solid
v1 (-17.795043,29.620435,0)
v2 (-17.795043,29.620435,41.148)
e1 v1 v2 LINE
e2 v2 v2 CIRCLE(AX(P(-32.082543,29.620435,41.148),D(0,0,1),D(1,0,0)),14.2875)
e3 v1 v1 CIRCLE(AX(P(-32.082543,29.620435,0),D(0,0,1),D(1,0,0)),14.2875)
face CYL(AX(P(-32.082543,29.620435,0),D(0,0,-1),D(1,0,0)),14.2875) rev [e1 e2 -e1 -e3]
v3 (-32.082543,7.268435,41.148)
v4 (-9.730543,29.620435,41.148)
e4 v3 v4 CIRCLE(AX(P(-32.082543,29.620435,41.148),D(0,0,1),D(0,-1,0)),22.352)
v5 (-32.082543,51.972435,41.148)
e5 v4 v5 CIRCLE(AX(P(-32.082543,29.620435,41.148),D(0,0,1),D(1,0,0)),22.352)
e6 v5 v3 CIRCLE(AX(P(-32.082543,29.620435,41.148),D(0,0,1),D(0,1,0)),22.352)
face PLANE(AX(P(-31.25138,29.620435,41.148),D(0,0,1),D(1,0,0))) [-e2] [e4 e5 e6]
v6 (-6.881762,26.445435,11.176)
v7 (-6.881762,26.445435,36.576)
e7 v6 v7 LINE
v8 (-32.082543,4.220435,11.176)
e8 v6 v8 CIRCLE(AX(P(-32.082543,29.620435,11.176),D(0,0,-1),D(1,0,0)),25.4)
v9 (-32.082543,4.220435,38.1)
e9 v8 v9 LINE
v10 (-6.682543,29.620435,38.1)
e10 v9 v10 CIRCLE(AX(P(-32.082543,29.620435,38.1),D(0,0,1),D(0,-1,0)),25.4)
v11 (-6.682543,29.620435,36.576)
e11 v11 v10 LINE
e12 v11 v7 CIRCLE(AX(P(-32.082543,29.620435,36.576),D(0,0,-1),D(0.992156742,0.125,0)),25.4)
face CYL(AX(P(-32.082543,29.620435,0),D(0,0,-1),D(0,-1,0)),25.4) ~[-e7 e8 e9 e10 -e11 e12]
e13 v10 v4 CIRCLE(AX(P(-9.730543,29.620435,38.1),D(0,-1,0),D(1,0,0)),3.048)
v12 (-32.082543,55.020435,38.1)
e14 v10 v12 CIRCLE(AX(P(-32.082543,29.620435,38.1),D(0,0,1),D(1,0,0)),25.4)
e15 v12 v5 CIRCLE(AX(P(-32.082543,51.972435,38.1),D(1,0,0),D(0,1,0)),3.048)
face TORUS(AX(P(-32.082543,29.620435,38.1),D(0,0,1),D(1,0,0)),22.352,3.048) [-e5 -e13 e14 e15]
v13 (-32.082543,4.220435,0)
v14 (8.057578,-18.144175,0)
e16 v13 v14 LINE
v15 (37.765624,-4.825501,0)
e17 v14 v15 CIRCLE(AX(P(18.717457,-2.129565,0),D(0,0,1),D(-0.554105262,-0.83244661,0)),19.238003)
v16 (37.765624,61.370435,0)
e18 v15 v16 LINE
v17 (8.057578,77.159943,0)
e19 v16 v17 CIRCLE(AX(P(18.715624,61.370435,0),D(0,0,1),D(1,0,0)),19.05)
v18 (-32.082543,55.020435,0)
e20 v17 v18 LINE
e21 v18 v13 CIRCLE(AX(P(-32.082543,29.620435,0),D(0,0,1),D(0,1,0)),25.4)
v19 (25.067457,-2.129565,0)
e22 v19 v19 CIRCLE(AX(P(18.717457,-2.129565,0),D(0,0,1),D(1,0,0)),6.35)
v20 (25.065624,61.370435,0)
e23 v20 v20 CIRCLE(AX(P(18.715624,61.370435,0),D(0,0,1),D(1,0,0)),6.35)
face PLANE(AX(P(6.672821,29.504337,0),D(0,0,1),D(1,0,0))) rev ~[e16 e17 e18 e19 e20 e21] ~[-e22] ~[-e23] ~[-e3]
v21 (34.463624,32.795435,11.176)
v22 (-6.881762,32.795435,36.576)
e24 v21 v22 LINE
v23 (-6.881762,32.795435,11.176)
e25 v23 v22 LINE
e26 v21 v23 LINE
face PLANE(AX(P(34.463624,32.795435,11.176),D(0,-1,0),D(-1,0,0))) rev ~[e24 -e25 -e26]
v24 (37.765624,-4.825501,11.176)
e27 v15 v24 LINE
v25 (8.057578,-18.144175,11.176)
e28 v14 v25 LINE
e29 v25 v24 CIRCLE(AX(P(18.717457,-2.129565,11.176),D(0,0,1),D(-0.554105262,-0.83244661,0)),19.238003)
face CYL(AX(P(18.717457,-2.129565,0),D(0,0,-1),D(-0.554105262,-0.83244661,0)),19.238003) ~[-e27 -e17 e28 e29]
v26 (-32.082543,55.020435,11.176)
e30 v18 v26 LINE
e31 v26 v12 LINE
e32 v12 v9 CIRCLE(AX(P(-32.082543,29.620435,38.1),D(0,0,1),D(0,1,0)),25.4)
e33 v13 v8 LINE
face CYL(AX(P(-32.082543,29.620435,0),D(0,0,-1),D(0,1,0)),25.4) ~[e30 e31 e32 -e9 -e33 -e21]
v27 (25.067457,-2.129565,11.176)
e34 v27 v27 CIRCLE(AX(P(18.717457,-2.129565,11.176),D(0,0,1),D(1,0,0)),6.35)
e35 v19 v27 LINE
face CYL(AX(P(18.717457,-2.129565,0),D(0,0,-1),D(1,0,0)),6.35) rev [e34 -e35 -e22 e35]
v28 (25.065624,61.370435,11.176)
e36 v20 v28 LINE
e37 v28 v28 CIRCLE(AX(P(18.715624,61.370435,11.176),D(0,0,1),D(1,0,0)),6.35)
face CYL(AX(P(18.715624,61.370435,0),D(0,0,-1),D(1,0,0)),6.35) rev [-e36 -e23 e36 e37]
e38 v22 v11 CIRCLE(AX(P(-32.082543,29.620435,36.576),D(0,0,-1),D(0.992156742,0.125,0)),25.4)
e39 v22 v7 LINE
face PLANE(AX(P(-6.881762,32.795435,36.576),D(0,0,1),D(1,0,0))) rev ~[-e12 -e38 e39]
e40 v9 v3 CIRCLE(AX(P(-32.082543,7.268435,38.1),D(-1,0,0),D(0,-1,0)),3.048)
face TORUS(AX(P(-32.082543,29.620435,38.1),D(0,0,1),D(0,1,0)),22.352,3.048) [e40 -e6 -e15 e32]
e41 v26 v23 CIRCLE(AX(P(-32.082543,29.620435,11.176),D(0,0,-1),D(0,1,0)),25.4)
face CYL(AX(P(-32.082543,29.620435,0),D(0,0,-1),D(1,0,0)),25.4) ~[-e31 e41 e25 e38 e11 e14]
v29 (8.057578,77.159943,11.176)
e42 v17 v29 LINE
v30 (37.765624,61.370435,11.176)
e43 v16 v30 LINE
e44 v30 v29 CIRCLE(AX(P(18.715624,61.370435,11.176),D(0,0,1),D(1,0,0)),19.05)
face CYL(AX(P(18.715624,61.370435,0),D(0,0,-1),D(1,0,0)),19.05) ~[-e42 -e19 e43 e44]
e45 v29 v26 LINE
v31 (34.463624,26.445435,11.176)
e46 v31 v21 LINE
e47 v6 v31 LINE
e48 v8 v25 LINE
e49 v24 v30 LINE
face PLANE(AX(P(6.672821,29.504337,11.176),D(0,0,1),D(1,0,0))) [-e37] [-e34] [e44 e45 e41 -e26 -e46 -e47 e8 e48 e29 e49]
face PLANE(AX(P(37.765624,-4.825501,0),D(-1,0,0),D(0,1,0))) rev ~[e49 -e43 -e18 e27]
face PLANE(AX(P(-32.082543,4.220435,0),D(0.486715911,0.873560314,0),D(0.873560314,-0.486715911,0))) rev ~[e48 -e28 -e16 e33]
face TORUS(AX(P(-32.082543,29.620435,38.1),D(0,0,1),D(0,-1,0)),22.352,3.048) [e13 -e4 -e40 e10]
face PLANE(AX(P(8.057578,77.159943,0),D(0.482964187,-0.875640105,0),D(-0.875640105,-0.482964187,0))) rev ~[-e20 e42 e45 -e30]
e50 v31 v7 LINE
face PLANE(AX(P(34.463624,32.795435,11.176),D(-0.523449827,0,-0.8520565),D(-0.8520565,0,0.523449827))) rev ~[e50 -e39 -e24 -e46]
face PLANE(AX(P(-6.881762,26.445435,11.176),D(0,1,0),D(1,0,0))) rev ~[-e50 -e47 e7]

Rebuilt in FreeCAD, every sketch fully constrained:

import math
import FreeCAD as App
import Part
import Sketcher

V = App.Vector
Q = App.Units.Quantity


def edges_at(feature, points):
    """Names of the edges that pass closest to the given points."""
    edges = feature.Shape.Edges
    near = lambda p: min(range(len(edges)), key=lambda i: edges[i].distToShape(Part.Vertex(*p))[0])
    return sorted({f"Edge{near(p) + 1}" for p in points})


def add_polygon(sketch, points):
    """Adds a closed chain of lines whose ends are joined by coincident constraints."""
    first, n = sketch.GeometryCount, len(points)
    for a, b in zip(points, points[1:] + points[:1]):
        sketch.addGeometry(Part.LineSegment(App.Vector(*a, 0), App.Vector(*b, 0)), False)
    for i in range(n):
        sketch.addConstraint(Sketcher.Constraint("Coincident", first + i, 2, first + (i + 1) % n, 1))

doc = App.newDocument("Part")
params = doc.addObject("Spreadsheet::Sheet", "Params")
for row, (alias, value) in enumerate([
    ("sketch1_radius", "1 in"),
    ("sketch1_diameter", "1.125 in"),
    ("pad1_length", "1.62 in"),
    ("sketch2_radius", "1 in"),
    ("sketch2_diameter", "0.5 in"),
    ("sketch2_radius2", "0.75 in"),
    ("pad2_length", "0.44 in"),
    ("fillet_radius", "0.12 in"),
    ("sketch3_radius", "1 in"),
    ("sketch3_height", "0.25 in"),
    ("pad3_length", "1 in"),
    ("sketch4_height", "1 in"),
], start=1):
    params.set(f"A{row}", alias)
    params.set(f"B{row}", "=" + value)
    params.setAlias(f"B{row}", alias)

body = doc.addObject("PartDesign::Body", "Body")

# Sketch on XY plane
sketch1 = body.newObject("Sketcher::SketchObject", "Sketch")
sketch1.AttachmentSupport = (doc.getObject("XY_Plane"), [""])
sketch1.MapMode = "FlatFace"
sketch1.addGeometry([
    Part.ArcOfCircle(Part.Circle(V(-32.082543, 29.620435, 0), V(0, 0, 1), 25.4), math.radians(-90), math.radians(0)),
    Part.ArcOfCircle(Part.Circle(V(-32.082543, 29.620435, 0), V(0, 0, 1), 25.4), math.radians(0), math.radians(90)),
    Part.ArcOfCircle(Part.Circle(V(-32.082543, 29.620435, 0), V(0, 0, 1), 25.4), math.radians(90), math.radians(270)),
    Part.Circle(V(-32.082543, 29.620435, 0), V(0, 0, 1), 14.2875),
], False)
sketch1.addConstraint([
    Sketcher.Constraint("Tangent", 0, 2, 1, 1),
    Sketcher.Constraint("Tangent", 1, 2, 2, 1),
    Sketcher.Constraint("Tangent", 2, 2, 0, 1),
    Sketcher.Constraint("Coincident", 3, 3, 0, 3),
    Sketcher.Constraint("Horizontal", 3, 3, 0, 2),
    Sketcher.Constraint("Vertical", 3, 3, 1, 2),
    Sketcher.Constraint("Vertical", 1, 2, 2, 2),
    Sketcher.Constraint("Radius", 0, Q("1 in")),
    Sketcher.Constraint("Diameter", 3, Q("1.125 in")),
    Sketcher.Constraint("DistanceX", 0, 3, -1, 1, 32.082543),
    Sketcher.Constraint("DistanceY", -1, 1, 0, 3, 29.620435),
])
sketch1.setExpression("Constraints[7]", "Params.sketch1_radius")
sketch1.setExpression("Constraints[8]", "Params.sketch1_diameter")
pad1 = body.newObject("PartDesign::Pad", "Pad")
pad1.Profile = sketch1
pad1.setExpression("Length", "Params.pad1_length")

# Sketch on XY plane
sketch2 = body.newObject("Sketcher::SketchObject", "Sketch001")
sketch2.AttachmentSupport = (doc.getObject("XY_Plane"), [""])
sketch2.MapMode = "FlatFace"
sketch2.addGeometry([
    Part.ArcOfCircle(Part.Circle(V(-32.082543, 29.620435, 0), V(0, 0, 1), 25.4), math.radians(0), math.radians(90)),  # 0
    Part.ArcOfCircle(Part.Circle(V(-32.082543, 29.620435, 0), V(0, 0, 1), 25.4), math.radians(-90), math.radians(0)),  # 1
    Part.LineSegment(V(-32.082543, 4.220435, 0), V(8.057578, -18.144175, 0)),  # 2
    Part.ArcOfCircle(Part.Circle(V(18.717457, -2.129565, 0), V(0, 0, 1), 19.238003), math.radians(-123.64911), math.radians(-8.055716)),  # 3
    Part.LineSegment(V(37.765624, -4.825501, 0), V(37.765624, 61.370435, 0)),  # 4
    Part.ArcOfCircle(Part.Circle(V(18.715624, 61.370435, 0), V(0, 0, 1), 19.05), math.radians(0), math.radians(124.019668)),  # 5
    Part.LineSegment(V(8.057578, 77.159943, 0), V(-32.082543, 55.020435, 0)),  # 6
    Part.Circle(V(18.717457, -2.129565, 0), V(0, 0, 1), 6.35),  # 7
    Part.Circle(V(18.715624, 61.370435, 0), V(0, 0, 1), 6.35),  # 8
], False)
sketch2.addConstraint([
    Sketcher.Constraint("Tangent", 0, 1, 1, 2),
    Sketcher.Constraint("Coincident", 1, 1, 2, 1),
    Sketcher.Constraint("Coincident", 2, 2, 3, 1),
    Sketcher.Constraint("Coincident", 3, 2, 4, 1),
    Sketcher.Constraint("Tangent", 4, 2, 5, 1),
    Sketcher.Constraint("Coincident", 5, 2, 6, 1),
    Sketcher.Constraint("Coincident", 6, 2, 0, 2),
    Sketcher.Constraint("Vertical", 4),
    Sketcher.Constraint("Coincident", 7, 3, 3, 3),
    Sketcher.Constraint("Coincident", 8, 3, 5, 3),
    Sketcher.Constraint("Equal", 0, 1),
    Sketcher.Constraint("Equal", 7, 8),
    Sketcher.Constraint("Horizontal", 1, 3, 0, 1),
    Sketcher.Constraint("Vertical", 0, 3, 1, 1),
    Sketcher.Constraint("Vertical", 2, 2, 5, 2),
    Sketcher.Constraint("Vertical", 1, 1, 6, 2),
    Sketcher.Constraint("Radius", 0, Q("1 in")),
    Sketcher.Constraint("Diameter", 7, Q("0.5 in")),
    Sketcher.Constraint("Radius", 5, Q("0.75 in")),
    Sketcher.Constraint("DistanceX", 0, 3, 3, 3, Q("2 in")),
    Sketcher.Constraint("DistanceY", 3, 3, 5, 3, Q("2.5 in")),
    Sketcher.Constraint("DistanceY", 3, 3, 0, 3, Q("1.25 in")),
    Sketcher.Constraint("Radius", 3, 19.238003),
    Sketcher.Constraint("DistanceY", 3, 2, -1, 1, 4.825501),
    Sketcher.Constraint("Distance", 2, 45.950029),
    Sketcher.Constraint("Distance", 6, 45.84089),
    Sketcher.Constraint("DistanceX", -1, 1, 2, 2, 8.057578),
])
sketch2.setExpression("Constraints[16]", "Params.sketch2_radius")
sketch2.setExpression("Constraints[17]", "Params.sketch2_diameter")
sketch2.setExpression("Constraints[18]", "Params.sketch2_radius2")
pad2 = body.newObject("PartDesign::Pad", "Pad001")
pad2.Profile = sketch2
pad2.setExpression("Length", "Params.pad2_length")
doc.recompute()

fillet = body.newObject("PartDesign::Fillet", "Fillet")
fillet.Base = (pad2, edges_at(pad2, [(-14.122, 11.66, 41.148)]))
fillet.setExpression("Radius", "Params.fillet_radius")

# Sketch on XY plane
sketch3 = body.newObject("Sketcher::SketchObject", "Sketch002")
sketch3.AttachmentSupport = (doc.getObject("XY_Plane"), [""])
sketch3.MapMode = "FlatFace"
sketch3.AttachmentOffset = App.Placement(V(0, 0, 0.44 * 25.4), App.Rotation())
sketch3.addGeometry([
    Part.LineSegment(V(34.463624, 26.445435, 0), V(34.463624, 32.795435, 0)),
    Part.LineSegment(V(34.463624, 32.795435, 0), V(-6.881762, 32.795435, 0)),
    Part.ArcOfCircle(Part.Circle(V(-32.082543, 29.620435, 0), V(0, 0, 1), 25.4), math.radians(-7.180756), math.radians(7.180756)),
    Part.LineSegment(V(-6.881762, 26.445435, 0), V(34.463624, 26.445435, 0)),
], False)
sketch3.addConstraint([
    Sketcher.Constraint("Coincident", 0, 2, 1, 1),
    Sketcher.Constraint("Coincident", 1, 2, 2, 2),
    Sketcher.Constraint("Coincident", 2, 1, 3, 1),
    Sketcher.Constraint("Coincident", 3, 2, 0, 1),
    Sketcher.Constraint("Vertical", 0),
    Sketcher.Constraint("Horizontal", 1),
    Sketcher.Constraint("Horizontal", 3),
    Sketcher.Constraint("Vertical", 1, 2, 2, 1),
    Sketcher.Constraint("Radius", 2, Q("1 in")),
    Sketcher.Constraint("DistanceY", 0, 1, 0, 2, Q("0.25 in")),
    Sketcher.Constraint("DistanceX", 1, 2, 1, 1, 41.345386),
    Sketcher.Constraint("DistanceX", 1, 2, -1, 1, 6.881762),
    Sketcher.Constraint("DistanceY", -1, 1, 2, 3, 29.620435),
])
sketch3.setExpression("Constraints[8]", "Params.sketch3_radius")
sketch3.setExpression("Constraints[9]", "Params.sketch3_height")
pad3 = body.newObject("PartDesign::Pad", "Pad002")
pad3.Profile = sketch3
pad3.setExpression("Length", "Params.pad3_length")

# Sketch on XZ plane
sketch4 = body.newObject("Sketcher::SketchObject", "Sketch003")
sketch4.AttachmentSupport = (doc.getObject("XZ_Plane"), [""])
sketch4.MapMode = "FlatFace"
sketch4.AttachmentOffset = App.Placement(V(0, 0, -32.795435), App.Rotation())
add_polygon(sketch4, [(34.463624, 11.176), (-6.881762, 36.576), (34.463624, 36.576)])  # lines 0-2
sketch4.addConstraint([
    Sketcher.Constraint("Horizontal", 1),
    Sketcher.Constraint("Vertical", 2),
    Sketcher.Constraint("DistanceY", 2, 2, 2, 1, Q("1 in")),
    Sketcher.Constraint("DistanceY", -1, 1, 0, 2, Q("1.44 in")),
    Sketcher.Constraint("Distance", 0, 48.52423),
    Sketcher.Constraint("DistanceX", 0, 2, -1, 1, 6.881762),
])
sketch4.setExpression("Constraints[5]", "Params.sketch4_height")
pocket1 = body.newObject("PartDesign::Pocket", "Pocket")
pocket1.Profile = sketch4
pocket1.Type = "ThroughAll"
pocket1.Reversed = True

doc.recompute()
